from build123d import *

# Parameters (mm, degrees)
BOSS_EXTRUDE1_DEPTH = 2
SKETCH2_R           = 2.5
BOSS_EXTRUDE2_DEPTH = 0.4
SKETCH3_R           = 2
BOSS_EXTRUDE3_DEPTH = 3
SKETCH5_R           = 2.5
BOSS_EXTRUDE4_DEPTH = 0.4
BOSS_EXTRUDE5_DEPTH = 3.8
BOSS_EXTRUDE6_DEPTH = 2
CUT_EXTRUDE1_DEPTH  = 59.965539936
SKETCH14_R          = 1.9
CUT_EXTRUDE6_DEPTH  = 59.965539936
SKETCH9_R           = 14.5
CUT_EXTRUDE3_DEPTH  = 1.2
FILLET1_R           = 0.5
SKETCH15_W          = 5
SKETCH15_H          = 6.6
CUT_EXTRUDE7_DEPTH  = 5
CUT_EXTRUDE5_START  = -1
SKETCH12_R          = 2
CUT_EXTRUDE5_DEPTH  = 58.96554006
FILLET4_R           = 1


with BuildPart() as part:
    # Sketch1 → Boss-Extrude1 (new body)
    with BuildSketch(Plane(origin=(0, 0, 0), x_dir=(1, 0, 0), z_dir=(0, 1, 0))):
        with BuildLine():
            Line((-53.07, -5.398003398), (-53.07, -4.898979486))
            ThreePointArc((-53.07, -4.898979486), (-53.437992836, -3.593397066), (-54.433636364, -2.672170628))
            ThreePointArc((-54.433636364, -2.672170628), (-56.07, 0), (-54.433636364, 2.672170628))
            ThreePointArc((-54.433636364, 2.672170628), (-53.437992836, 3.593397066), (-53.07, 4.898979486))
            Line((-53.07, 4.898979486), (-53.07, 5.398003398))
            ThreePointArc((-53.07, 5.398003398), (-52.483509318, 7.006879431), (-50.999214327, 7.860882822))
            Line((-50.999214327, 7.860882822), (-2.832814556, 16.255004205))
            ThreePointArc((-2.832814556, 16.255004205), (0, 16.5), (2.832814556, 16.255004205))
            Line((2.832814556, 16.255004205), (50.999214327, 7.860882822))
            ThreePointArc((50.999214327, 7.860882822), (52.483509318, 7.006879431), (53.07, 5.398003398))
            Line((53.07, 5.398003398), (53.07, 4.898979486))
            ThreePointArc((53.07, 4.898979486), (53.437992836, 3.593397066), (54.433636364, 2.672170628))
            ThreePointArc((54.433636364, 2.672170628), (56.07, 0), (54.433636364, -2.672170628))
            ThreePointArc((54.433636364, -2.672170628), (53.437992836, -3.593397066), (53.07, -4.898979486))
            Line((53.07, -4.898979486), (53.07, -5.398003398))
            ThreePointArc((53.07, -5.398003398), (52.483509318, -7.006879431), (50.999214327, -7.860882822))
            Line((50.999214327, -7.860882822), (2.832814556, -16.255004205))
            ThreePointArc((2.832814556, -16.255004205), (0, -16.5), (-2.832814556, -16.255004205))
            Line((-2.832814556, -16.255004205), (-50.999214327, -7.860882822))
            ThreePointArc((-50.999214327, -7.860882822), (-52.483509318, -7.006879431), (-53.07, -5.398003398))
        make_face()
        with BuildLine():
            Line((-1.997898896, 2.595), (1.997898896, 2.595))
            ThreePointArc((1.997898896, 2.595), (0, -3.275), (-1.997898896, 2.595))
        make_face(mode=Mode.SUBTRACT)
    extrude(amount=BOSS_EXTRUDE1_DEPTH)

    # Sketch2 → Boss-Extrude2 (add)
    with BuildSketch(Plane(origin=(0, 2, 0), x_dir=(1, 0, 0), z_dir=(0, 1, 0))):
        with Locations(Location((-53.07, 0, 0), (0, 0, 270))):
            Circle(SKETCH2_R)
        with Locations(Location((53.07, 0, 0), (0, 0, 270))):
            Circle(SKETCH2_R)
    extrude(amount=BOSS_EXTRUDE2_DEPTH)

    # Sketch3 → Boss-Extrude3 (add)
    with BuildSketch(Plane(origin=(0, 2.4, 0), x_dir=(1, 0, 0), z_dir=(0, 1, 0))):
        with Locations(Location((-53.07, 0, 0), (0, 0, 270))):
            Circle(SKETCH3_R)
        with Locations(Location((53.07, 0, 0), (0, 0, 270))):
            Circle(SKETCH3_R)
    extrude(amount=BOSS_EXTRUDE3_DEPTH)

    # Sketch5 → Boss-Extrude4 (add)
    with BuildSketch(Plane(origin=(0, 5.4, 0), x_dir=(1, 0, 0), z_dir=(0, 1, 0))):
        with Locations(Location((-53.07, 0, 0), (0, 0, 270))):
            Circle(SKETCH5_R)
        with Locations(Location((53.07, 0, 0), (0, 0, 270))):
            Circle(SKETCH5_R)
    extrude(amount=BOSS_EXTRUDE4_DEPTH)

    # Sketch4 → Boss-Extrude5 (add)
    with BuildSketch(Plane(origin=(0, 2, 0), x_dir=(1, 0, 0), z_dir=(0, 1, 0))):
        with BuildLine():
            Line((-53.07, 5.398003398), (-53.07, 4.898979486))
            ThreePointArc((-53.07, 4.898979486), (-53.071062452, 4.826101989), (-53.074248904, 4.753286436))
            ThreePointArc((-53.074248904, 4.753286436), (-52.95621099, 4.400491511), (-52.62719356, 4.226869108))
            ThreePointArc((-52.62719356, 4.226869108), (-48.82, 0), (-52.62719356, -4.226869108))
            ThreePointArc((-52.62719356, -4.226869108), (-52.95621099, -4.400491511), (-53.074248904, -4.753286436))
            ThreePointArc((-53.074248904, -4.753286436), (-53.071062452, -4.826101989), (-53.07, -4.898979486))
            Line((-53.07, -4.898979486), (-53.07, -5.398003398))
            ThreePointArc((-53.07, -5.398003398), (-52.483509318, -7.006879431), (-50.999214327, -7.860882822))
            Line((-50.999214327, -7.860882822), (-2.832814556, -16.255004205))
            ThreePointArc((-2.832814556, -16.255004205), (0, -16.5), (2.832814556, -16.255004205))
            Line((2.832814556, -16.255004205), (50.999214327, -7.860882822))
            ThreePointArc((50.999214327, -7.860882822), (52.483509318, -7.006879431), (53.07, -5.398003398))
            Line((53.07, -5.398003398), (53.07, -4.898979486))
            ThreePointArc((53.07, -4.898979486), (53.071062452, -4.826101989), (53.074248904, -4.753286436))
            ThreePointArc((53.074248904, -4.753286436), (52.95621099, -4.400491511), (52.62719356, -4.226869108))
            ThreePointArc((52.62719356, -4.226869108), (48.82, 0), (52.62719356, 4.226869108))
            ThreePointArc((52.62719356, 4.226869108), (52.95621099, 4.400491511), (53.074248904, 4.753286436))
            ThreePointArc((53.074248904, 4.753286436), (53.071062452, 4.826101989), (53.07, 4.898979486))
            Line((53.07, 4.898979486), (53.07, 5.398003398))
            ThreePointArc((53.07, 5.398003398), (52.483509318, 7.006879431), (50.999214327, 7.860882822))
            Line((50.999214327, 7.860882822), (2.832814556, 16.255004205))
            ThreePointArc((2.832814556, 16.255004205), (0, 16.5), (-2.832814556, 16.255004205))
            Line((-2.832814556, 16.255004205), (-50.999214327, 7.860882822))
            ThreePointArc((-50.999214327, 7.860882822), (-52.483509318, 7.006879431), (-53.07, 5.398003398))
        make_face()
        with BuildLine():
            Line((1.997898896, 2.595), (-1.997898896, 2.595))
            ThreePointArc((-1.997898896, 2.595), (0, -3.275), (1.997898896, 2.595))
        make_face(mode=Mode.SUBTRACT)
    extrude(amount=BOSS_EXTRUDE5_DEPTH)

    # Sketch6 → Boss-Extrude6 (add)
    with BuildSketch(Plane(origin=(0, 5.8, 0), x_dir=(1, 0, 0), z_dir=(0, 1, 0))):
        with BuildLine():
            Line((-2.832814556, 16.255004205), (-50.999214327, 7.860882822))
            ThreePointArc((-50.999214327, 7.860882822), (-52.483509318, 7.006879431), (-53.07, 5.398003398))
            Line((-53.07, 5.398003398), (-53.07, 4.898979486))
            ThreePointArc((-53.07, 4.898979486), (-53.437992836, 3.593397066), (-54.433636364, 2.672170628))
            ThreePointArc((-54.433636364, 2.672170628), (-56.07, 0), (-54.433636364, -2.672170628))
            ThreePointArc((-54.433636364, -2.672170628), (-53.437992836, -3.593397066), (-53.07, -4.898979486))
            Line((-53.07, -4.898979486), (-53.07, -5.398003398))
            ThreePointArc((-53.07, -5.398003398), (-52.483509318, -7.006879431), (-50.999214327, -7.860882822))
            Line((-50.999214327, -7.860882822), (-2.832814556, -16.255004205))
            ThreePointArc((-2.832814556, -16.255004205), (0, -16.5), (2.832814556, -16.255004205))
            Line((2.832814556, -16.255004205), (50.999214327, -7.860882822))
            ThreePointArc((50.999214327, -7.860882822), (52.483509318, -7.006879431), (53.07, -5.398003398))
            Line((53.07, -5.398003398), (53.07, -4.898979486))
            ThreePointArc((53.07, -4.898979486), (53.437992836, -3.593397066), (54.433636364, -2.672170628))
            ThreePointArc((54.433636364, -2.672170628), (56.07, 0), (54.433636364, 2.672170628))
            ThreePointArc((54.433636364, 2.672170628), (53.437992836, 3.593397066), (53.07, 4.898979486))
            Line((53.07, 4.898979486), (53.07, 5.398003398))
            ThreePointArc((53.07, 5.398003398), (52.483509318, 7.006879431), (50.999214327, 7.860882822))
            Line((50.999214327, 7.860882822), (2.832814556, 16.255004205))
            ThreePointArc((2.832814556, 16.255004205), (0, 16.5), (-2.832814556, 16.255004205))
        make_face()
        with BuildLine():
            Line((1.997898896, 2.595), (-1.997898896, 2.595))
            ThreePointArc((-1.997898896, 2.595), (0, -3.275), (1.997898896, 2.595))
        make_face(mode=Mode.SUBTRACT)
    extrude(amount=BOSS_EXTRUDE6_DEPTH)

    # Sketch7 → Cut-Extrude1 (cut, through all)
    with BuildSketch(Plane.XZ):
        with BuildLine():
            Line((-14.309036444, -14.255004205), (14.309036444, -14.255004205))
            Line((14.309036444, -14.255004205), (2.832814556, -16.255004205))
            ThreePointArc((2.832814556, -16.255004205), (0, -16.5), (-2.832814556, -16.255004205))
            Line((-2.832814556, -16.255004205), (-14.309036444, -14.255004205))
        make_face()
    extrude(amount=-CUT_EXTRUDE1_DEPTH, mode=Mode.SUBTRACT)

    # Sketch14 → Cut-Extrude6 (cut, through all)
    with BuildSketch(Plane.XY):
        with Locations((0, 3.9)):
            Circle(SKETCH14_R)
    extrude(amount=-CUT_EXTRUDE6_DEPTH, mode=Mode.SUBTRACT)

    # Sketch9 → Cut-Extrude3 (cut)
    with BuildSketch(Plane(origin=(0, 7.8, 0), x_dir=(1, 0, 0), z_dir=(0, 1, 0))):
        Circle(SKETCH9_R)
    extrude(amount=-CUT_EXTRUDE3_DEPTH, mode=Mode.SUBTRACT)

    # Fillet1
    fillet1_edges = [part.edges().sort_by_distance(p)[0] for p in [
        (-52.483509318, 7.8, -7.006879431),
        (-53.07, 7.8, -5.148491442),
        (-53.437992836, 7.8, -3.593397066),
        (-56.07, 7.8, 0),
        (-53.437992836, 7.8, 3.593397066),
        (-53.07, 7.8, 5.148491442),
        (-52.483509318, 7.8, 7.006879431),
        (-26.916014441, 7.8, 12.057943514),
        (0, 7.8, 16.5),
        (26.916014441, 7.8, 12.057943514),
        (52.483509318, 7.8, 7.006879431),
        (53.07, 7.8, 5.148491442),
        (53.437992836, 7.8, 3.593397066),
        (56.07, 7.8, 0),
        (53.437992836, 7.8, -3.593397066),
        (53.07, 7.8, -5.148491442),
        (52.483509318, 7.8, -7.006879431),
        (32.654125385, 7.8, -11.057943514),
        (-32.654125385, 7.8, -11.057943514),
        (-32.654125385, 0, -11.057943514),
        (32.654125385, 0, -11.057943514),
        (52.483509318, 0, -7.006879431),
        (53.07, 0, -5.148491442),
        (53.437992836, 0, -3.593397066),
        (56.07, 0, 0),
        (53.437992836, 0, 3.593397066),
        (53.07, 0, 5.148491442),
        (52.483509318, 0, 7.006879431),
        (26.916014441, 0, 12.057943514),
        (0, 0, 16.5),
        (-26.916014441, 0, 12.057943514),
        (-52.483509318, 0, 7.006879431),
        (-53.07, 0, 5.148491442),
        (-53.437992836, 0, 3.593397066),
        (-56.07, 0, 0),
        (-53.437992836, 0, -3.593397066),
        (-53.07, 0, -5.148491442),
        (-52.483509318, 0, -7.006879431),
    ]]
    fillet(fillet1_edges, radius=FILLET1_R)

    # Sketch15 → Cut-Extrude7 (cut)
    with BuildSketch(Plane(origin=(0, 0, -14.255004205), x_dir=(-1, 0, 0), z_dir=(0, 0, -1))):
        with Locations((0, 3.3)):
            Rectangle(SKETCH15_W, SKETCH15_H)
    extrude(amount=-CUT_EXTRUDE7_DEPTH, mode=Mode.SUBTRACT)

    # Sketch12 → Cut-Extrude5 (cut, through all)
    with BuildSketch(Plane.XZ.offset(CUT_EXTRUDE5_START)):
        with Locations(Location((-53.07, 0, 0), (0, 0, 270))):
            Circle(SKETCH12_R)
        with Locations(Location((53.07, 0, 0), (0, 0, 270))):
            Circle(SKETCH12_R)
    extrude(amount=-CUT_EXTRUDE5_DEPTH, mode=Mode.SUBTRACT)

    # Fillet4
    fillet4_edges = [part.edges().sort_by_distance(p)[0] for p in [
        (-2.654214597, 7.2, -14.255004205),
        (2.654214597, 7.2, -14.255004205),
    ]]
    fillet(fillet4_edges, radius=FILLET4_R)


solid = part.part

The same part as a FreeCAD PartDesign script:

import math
import FreeCAD as App
import Part
import Sketcher
Q = App.Units.Quantity


def edges_at(feature, points):
    """Names of the edges that pass closest to the given points."""
    edges = feature.Shape.Edges
    near = lambda p: min(range(len(edges)), key=lambda i: edges[i].distToShape(Part.Vertex(*p))[0])
    return sorted({f"Edge{near(p) + 1}" for p in points})


def add_polygon(sketch, points):
    """Adds a closed chain of lines whose ends are joined by coincident constraints."""
    first, n = sketch.GeometryCount, len(points)
    for a, b in zip(points, points[1:] + points[:1]):
        sketch.addGeometry(Part.LineSegment(App.Vector(*a, 0), App.Vector(*b, 0)), False)
    for i in range(n):
        sketch.addConstraint(Sketcher.Constraint("Coincident", first + i, 2, first + (i + 1) % n, 1))

doc = App.newDocument("Part")
body = doc.addObject("PartDesign::Body", "Body")

sketch1 = doc.addObject("Sketcher::SketchObject", "Sketch")
body.addObject(sketch1)
sketch1.AttachmentSupport = (doc.XZ_Plane, [""])
sketch1.MapMode = "FlatFace"
sketch1.addGeometry(Part.LineSegment(App.Vector(-53.07, 4.9, 0), App.Vector(-53.07, 5.4, 0)), False)
sketch1.addGeometry(Part.ArcOfCircle(Part.Circle(App.Vector(-50.57, 5.4, 0), App.Vector(0, 0, 1), 2.5), math.radians(100), math.radians(180)), False)
sketch1.addGeometry(Part.LineSegment(App.Vector(-51, 7.86, 0), App.Vector(-2.83, 16.26, 0)), False)
sketch1.addGeometry(Part.ArcOfCircle(Part.Circle(App.Vector(0, 0, 0), App.Vector(0, 0, 1), 16.5), math.radians(80.11), math.radians(99.89)), False)
sketch1.addGeometry(Part.LineSegment(App.Vector(2.83, 16.26, 0), App.Vector(51, 7.86, 0)), False)
sketch1.addGeometry(Part.ArcOfCircle(Part.Circle(App.Vector(50.57, 5.4, 0), App.Vector(0, 0, 1), 2.5), math.radians(0), math.radians(80)), False)
sketch1.addGeometry(Part.LineSegment(App.Vector(53.07, 5.4, 0), App.Vector(53.07, 4.9, 0)), False)
sketch1.addGeometry(Part.ArcOfCircle(Part.Circle(App.Vector(55.57, 4.9, 0), App.Vector(0, 0, 1), 2.5), math.radians(180), math.radians(243)), False)
sketch1.addGeometry(Part.ArcOfCircle(Part.Circle(App.Vector(53.07, 0, 0), App.Vector(0, 0, 1), 3), math.radians(-63), math.radians(63)), False)
sketch1.addGeometry(Part.ArcOfCircle(Part.Circle(App.Vector(55.57, -4.9, 0), App.Vector(0, 0, 1), 2.5), math.radians(117), math.radians(180)), False)
sketch1.addGeometry(Part.LineSegment(App.Vector(53.07, -4.9, 0), App.Vector(53.07, -5.4, 0)), False)
sketch1.addGeometry(Part.ArcOfCircle(Part.Circle(App.Vector(50.57, -5.4, 0), App.Vector(0, 0, 1), 2.5), math.radians(-80), math.radians(0)), False)
sketch1.addGeometry(Part.LineSegment(App.Vector(51, -7.86, 0), App.Vector(2.83, -16.26, 0)), False)
sketch1.addGeometry(Part.ArcOfCircle(Part.Circle(App.Vector(0, 0, 0), App.Vector(0, 0, 1), 16.5), math.radians(-99.89), math.radians(-80.11)), False)
sketch1.addGeometry(Part.LineSegment(App.Vector(-2.83, -16.26, 0), App.Vector(-51, -7.86, 0)), False)
sketch1.addGeometry(Part.ArcOfCircle(Part.Circle(App.Vector(-50.57, -5.4, 0), App.Vector(0, 0, 1), 2.5), math.radians(180), math.radians(260)), False)
sketch1.addGeometry(Part.LineSegment(App.Vector(-53.07, -5.4, 0), App.Vector(-53.07, -4.9, 0)), False)
sketch1.addGeometry(Part.ArcOfCircle(Part.Circle(App.Vector(-55.57, -4.9, 0), App.Vector(0, 0, 1), 2.5), math.radians(0), math.radians(63)), False)
sketch1.addGeometry(Part.ArcOfCircle(Part.Circle(App.Vector(-53.07, 0, 0), App.Vector(0, 0, 1), 3), math.radians(117), math.radians(243)), False)
sketch1.addGeometry(Part.ArcOfCircle(Part.Circle(App.Vector(-55.57, 4.9, 0), App.Vector(0, 0, 1), 2.5), math.radians(-63), math.radians(0)), False)
sketch1.addGeometry(Part.LineSegment(App.Vector(-2, -2.6, 0), App.Vector(2, -2.6, 0)), False)
sketch1.addGeometry(Part.ArcOfCircle(Part.Circle(App.Vector(0, 0, 0), App.Vector(0, 0, 1), 3.27), math.radians(-52), math.radians(232)), False)
sketch1.addConstraint(Sketcher.Constraint("Tangent", 0, 2, 1, 2))
sketch1.addConstraint(Sketcher.Constraint("Tangent", 1, 1, 2, 1))
sketch1.addConstraint(Sketcher.Constraint("Tangent", 2, 2, 3, 2))
sketch1.addConstraint(Sketcher.Constraint("Tangent", 3, 1, 4, 1))
sketch1.addConstraint(Sketcher.Constraint("Tangent", 4, 2, 5, 2))
sketch1.addConstraint(Sketcher.Constraint("Tangent", 5, 1, 6, 1))
sketch1.addConstraint(Sketcher.Constraint("Tangent", 6, 2, 7, 1))
sketch1.addConstraint(Sketcher.Constraint("Tangent", 7, 2, 8, 2))
sketch1.addConstraint(Sketcher.Constraint("Tangent", 8, 1, 9, 1))
sketch1.addConstraint(Sketcher.Constraint("Tangent", 9, 2, 10, 1))
sketch1.addConstraint(Sketcher.Constraint("Tangent", 10, 2, 11, 2))
sketch1.addConstraint(Sketcher.Constraint("Tangent", 11, 1, 12, 1))
sketch1.addConstraint(Sketcher.Constraint("Tangent", 12, 2, 13, 2))
sketch1.addConstraint(Sketcher.Constraint("Tangent", 13, 1, 14, 1))
sketch1.addConstraint(Sketcher.Constraint("Tangent", 14, 2, 15, 2))
sketch1.addConstraint(Sketcher.Constraint("Tangent", 15, 1, 16, 1))
sketch1.addConstraint(Sketcher.Constraint("Tangent", 16, 2, 17, 1))
sketch1.addConstraint(Sketcher.Constraint("Tangent", 17, 2, 18, 2))
sketch1.addConstraint(Sketcher.Constraint("Tangent", 18, 1, 19, 1))
sketch1.addConstraint(Sketcher.Constraint("Tangent", 19, 2, 0, 1))
sketch1.addConstraint(Sketcher.Constraint("Coincident", 20, 1, 21, 2))
sketch1.addConstraint(Sketcher.Constraint("Coincident", 21, 1, 20, 2))
sketch1.addConstraint(Sketcher.Constraint("Vertical", 0))
sketch1.addConstraint(Sketcher.Constraint("Vertical", 6))
sketch1.addConstraint(Sketcher.Constraint("Vertical", 10))
sketch1.addConstraint(Sketcher.Constraint("Vertical", 16))
sketch1.addConstraint(Sketcher.Constraint("Horizontal", 20))
sketch1.addConstraint(Sketcher.Constraint("Coincident", 3, 3, -1, 1))
sketch1.addConstraint(Sketcher.Constraint("Coincident", 13, 3, -1, 1))
sketch1.addConstraint(Sketcher.Constraint("Coincident", 21, 3, -1, 1))
sketch1.addConstraint(Sketcher.Constraint("Equal", 1, 5))
sketch1.addConstraint(Sketcher.Constraint("Equal", 5, 7))
sketch1.addConstraint(Sketcher.Constraint("Equal", 7, 9))
sketch1.addConstraint(Sketcher.Constraint("Equal", 9, 11))
sketch1.addConstraint(Sketcher.Constraint("Equal", 3, 13))
sketch1.addConstraint(Sketcher.Constraint("Equal", 11, 15))
sketch1.addConstraint(Sketcher.Constraint("Equal", 15, 17))
sketch1.addConstraint(Sketcher.Constraint("Equal", 8, 18))
sketch1.addConstraint(Sketcher.Constraint("Equal", 17, 19))
sketch1.addConstraint(Sketcher.Constraint("Symmetric", 1, 3, 11, 3, -1, 1))
sketch1.addConstraint(Sketcher.Constraint("Symmetric", 5, 3, 15, 3, -1, 1))
sketch1.addConstraint(Sketcher.Constraint("Symmetric", 8, 3, 18, 3, -1, 1))
sketch1.addConstraint(Sketcher.Constraint("Symmetric", 1, 3, 5, 3, -2))
sketch1.addConstraint(Sketcher.Constraint("PointOnObject", 8, 3, -1))
sketch1.addConstraint(Sketcher.Constraint("Vertical", 18, 3, 0, 2))
sketch1.addConstraint(Sketcher.Constraint("Radius", 8, Q("3 mm")))
sketch1.addConstraint(Sketcher.Constraint("Radius", 1, Q("2.5 mm")))
sketch1.addConstraint(Sketcher.Constraint("Radius", 3, Q("16.5 mm")))
sketch1.addConstraint(Sketcher.Constraint("Radius", 21, Q("3.275 mm")))
sketch1.addConstraint(Sketcher.Constraint("DistanceX", 1, 3, -1, 1, Q("50.57 mm")))
sketch1.addConstraint(Sketcher.Constraint("DistanceY", 20, 1, -1, 1, Q("2.595 mm")))
sketch1.addConstraint(Sketcher.Constraint("DistanceY", 1, 3, 2, 2, Q("10.857001 mm")))
pad1 = doc.addObject("PartDesign::Pad", "Pad")
body.addObject(pad1)
pad1.Profile = sketch1
pad1.Length = 2
pad1.Reversed = True

sketch2 = doc.addObject("Sketcher::SketchObject", "Sketch001")
body.addObject(sketch2)
sketch2.AttachmentSupport = (doc.XZ_Plane, [""])
sketch2.MapMode = "FlatFace"
sketch2.AttachmentOffset = App.Placement(App.Vector(0, 0, -2), App.Rotation())
sketch2.addGeometry(Part.Circle(App.Vector(-53.1, 0, 0), App.Vector(0, 0, 1), 2.5), False)
sketch2.addGeometry(Part.Circle(App.Vector(53.1, 0, 0), App.Vector(0, 0, 1), 2.5), False)
sketch2.addConstraint(Sketcher.Constraint("Equal", 0, 1))
sketch2.addConstraint(Sketcher.Constraint("Symmetric", 0, 3, 1, 3, -1, 1))
sketch2.addConstraint(Sketcher.Constraint("PointOnObject", 0, 3, -1))
sketch2.addConstraint(Sketcher.Constraint("Diameter", 0, Q("5 mm")))
sketch2.addConstraint(Sketcher.Constraint("DistanceX", 0, 3, -1, 1, Q("53.07 mm")))
pad2 = doc.addObject("PartDesign::Pad", "Pad001")
body.addObject(pad2)
pad2.Profile = sketch2
pad2.Length = 0.4
pad2.Reversed = True

sketch3 = doc.addObject("Sketcher::SketchObject", "Sketch002")
body.addObject(sketch3)
sketch3.AttachmentSupport = (doc.XZ_Plane, [""])
sketch3.MapMode = "FlatFace"
sketch3.AttachmentOffset = App.Placement(App.Vector(0, 0, -2.4), App.Rotation())
sketch3.addGeometry(Part.Circle(App.Vector(-53.1, 0, 0), App.Vector(0, 0, 1), 2), False)
sketch3.addGeometry(Part.Circle(App.Vector(53.1, 0, 0), App.Vector(0, 0, 1), 2), False)
sketch3.addConstraint(Sketcher.Constraint("Equal", 0, 1))
sketch3.addConstraint(Sketcher.Constraint("Symmetric", 0, 3, 1, 3, -1, 1))
sketch3.addConstraint(Sketcher.Constraint("PointOnObject", 0, 3, -1))
sketch3.addConstraint(Sketcher.Constraint("Diameter", 0, Q("4 mm")))
sketch3.addConstraint(Sketcher.Constraint("DistanceX", 0, 3, -1, 1, Q("53.07 mm")))
pad3 = doc.addObject("PartDesign::Pad", "Pad002")
body.addObject(pad3)
pad3.Profile = sketch3
pad3.Length = 3
pad3.Reversed = True

sketch4 = doc.addObject("Sketcher::SketchObject", "Sketch003")
body.addObject(sketch4)
sketch4.AttachmentSupport = (doc.XZ_Plane, [""])
sketch4.MapMode = "FlatFace"
sketch4.AttachmentOffset = App.Placement(App.Vector(0, 0, -5.4), App.Rotation())
sketch4.addGeometry(Part.Circle(App.Vector(-53.1, 0, 0), App.Vector(0, 0, 1), 2.5), False)
sketch4.addGeometry(Part.Circle(App.Vector(53.1, 0, 0), App.Vector(0, 0, 1), 2.5), False)
sketch4.addConstraint(Sketcher.Constraint("Equal", 0, 1))
sketch4.addConstraint(Sketcher.Constraint("Symmetric", 0, 3, 1, 3, -1, 1))
sketch4.addConstraint(Sketcher.Constraint("PointOnObject", 0, 3, -1))
sketch4.addConstraint(Sketcher.Constraint("Diameter", 0, Q("5 mm")))
sketch4.addConstraint(Sketcher.Constraint("DistanceX", 0, 3, -1, 1, Q("53.07 mm")))
pad4 = doc.addObject("PartDesign::Pad", "Pad003")
body.addObject(pad4)
pad4.Profile = sketch4
pad4.Length = 0.4
pad4.Reversed = True

sketch5 = doc.addObject("Sketcher::SketchObject", "Sketch004")
body.addObject(sketch5)
sketch5.AttachmentSupport = (doc.XZ_Plane, [""])
sketch5.MapMode = "FlatFace"
sketch5.AttachmentOffset = App.Placement(App.Vector(0, 0, -2), App.Rotation())
sketch5.addGeometry(Part.LineSegment(App.Vector(-53.07, -5.4, 0), App.Vector(-53.07, -4.9, 0)), False)
sketch5.addGeometry(Part.ArcOfCircle(Part.Circle(App.Vector(-55.57, -4.9, 0), App.Vector(0, 0, 1), 2.5), math.radians(0), math.radians(3.34)), False)
sketch5.addGeometry(Part.ArcOfCircle(Part.Circle(App.Vector(-52.58, -4.72, 0), App.Vector(0, 0, 1), 0.5), math.radians(96), math.radians(183)), False)
sketch5.addGeometry(Part.ArcOfCircle(Part.Circle(App.Vector(-53.07, 0, 0), App.Vector(0, 0, 1), 4.25), math.radians(-84), math.radians(84)), False)
sketch5.addGeometry(Part.ArcOfCircle(Part.Circle(App.Vector(-52.58, 4.72, 0), App.Vector(0, 0, 1), 0.5), math.radians(177), math.radians(264)), False)
sketch5.addGeometry(Part.ArcOfCircle(Part.Circle(App.Vector(-55.57, 4.9, 0), App.Vector(0, 0, 1), 2.5), math.radians(-3.34), math.radians(0)), False)
sketch5.addGeometry(Part.LineSegment(App.Vector(-53.07, 4.9, 0), App.Vector(-53.07, 5.4, 0)), False)
sketch5.addGeometry(Part.ArcOfCircle(Part.Circle(App.Vector(-50.57, 5.4, 0), App.Vector(0, 0, 1), 2.5), math.radians(100), math.radians(180)), False)
sketch5.addGeometry(Part.LineSegment(App.Vector(-51, 7.86, 0), App.Vector(-2.83, 16.26, 0)), False)
sketch5.addGeometry(Part.ArcOfCircle(Part.Circle(App.Vector(0, 0, 0), App.Vector(0, 0, 1), 16.5), math.radians(80.11), math.radians(99.89)), False)
sketch5.addGeometry(Part.LineSegment(App.Vector(2.83, 16.26, 0), App.Vector(51, 7.86, 0)), False)
sketch5.addGeometry(Part.ArcOfCircle(Part.Circle(App.Vector(50.57, 5.4, 0), App.Vector(0, 0, 1), 2.5), math.radians(0), math.radians(80)), False)
sketch5.addGeometry(Part.LineSegment(App.Vector(53.07, 5.4, 0), App.Vector(53.07, 4.9, 0)), False)
sketch5.addGeometry(Part.ArcOfCircle(Part.Circle(App.Vector(55.57, 4.9, 0), App.Vector(0, 0, 1), 2.5), math.radians(-180), math.radians(-176.66)), False)
sketch5.addGeometry(Part.ArcOfCircle(Part.Circle(App.Vector(52.58, 4.72, 0), App.Vector(0, 0, 1), 0.5), math.radians(-84), math.radians(3)), False)
sketch5.addGeometry(Part.ArcOfCircle(Part.Circle(App.Vector(53.07, 0, 0), App.Vector(0, 0, 1), 4.25), math.radians(96), math.radians(264)), False)
sketch5.addGeometry(Part.ArcOfCircle(Part.Circle(App.Vector(52.58, -4.72, 0), App.Vector(0, 0, 1), 0.5), math.radians(-3), math.radians(84)), False)
sketch5.addGeometry(Part.ArcOfCircle(Part.Circle(App.Vector(55.57, -4.9, 0), App.Vector(0, 0, 1), 2.5), math.radians(176.66), math.radians(180)), False)
sketch5.addGeometry(Part.LineSegment(App.Vector(53.07, -4.9, 0), App.Vector(53.07, -5.4, 0)), False)
sketch5.addGeometry(Part.ArcOfCircle(Part.Circle(App.Vector(50.57, -5.4, 0), App.Vector(0, 0, 1), 2.5), math.radians(-80), math.radians(0)), False)
sketch5.addGeometry(Part.LineSegment(App.Vector(51, -7.86, 0), App.Vector(2.83, -16.26, 0)), False)
sketch5.addGeometry(Part.ArcOfCircle(Part.Circle(App.Vector(0, 0, 0), App.Vector(0, 0, 1), 16.5), math.radians(-99.89), math.radians(-80.11)), False)
sketch5.addGeometry(Part.LineSegment(App.Vector(-2.83, -16.26, 0), App.Vector(-51, -7.86, 0)), False)
sketch5.addGeometry(Part.ArcOfCircle(Part.Circle(App.Vector(-50.57, -5.4, 0), App.Vector(0, 0, 1), 2.5), math.radians(180), math.radians(260)), False)
sketch5.addGeometry(Part.LineSegment(App.Vector(-2, -2.6, 0), App.Vector(2, -2.6, 0)), False)
sketch5.addGeometry(Part.ArcOfCircle(Part.Circle(App.Vector(0, 0, 0), App.Vector(0, 0, 1), 3.27), math.radians(-52), math.radians(232)), False)
sketch5.addConstraint(Sketcher.Constraint("Tangent", 0, 2, 1, 1))
sketch5.addConstraint(Sketcher.Constraint("Tangent", 1, 2, 2, 2))
sketch5.addConstraint(Sketcher.Constraint("Tangent", 2, 1, 3, 1))
sketch5.addConstraint(Sketcher.Constraint("Tangent", 3, 2, 4, 2))
sketch5.addConstraint(Sketcher.Constraint("Tangent", 4, 1, 5, 1))
sketch5.addConstraint(Sketcher.Constraint("Tangent", 5, 2, 6, 1))
sketch5.addConstraint(Sketcher.Constraint("Tangent", 6, 2, 7, 2))
sketch5.addConstraint(Sketcher.Constraint("Tangent", 7, 1, 8, 1))
sketch5.addConstraint(Sketcher.Constraint("Tangent", 8, 2, 9, 2))
sketch5.addConstraint(Sketcher.Constraint("Tangent", 9, 1, 10, 1))
sketch5.addConstraint(Sketcher.Constraint("Tangent", 10, 2, 11, 2))
sketch5.addConstraint(Sketcher.Constraint("Tangent", 11, 1, 12, 1))
sketch5.addConstraint(Sketcher.Constraint("Tangent", 12, 2, 13, 1))
sketch5.addConstraint(Sketcher.Constraint("Tangent", 13, 2, 14, 2))
sketch5.addConstraint(Sketcher.Constraint("Tangent", 14, 1, 15, 1))
sketch5.addConstraint(Sketcher.Constraint("Tangent", 15, 2, 16, 2))
sketch5.addConstraint(Sketcher.Constraint("Tangent", 16, 1, 17, 1))
sketch5.addConstraint(Sketcher.Constraint("Tangent", 17, 2, 18, 1))
sketch5.addConstraint(Sketcher.Constraint("Tangent", 18, 2, 19, 2))
sketch5.addConstraint(Sketcher.Constraint("Tangent", 19, 1, 20, 1))
sketch5.addConstraint(Sketcher.Constraint("Tangent", 20, 2, 21, 2))
sketch5.addConstraint(Sketcher.Constraint("Tangent", 21, 1, 22, 1))
sketch5.addConstraint(Sketcher.Constraint("Tangent", 22, 2, 23, 2))
sketch5.addConstraint(Sketcher.Constraint("Tangent", 23, 1, 0, 1))
sketch5.addConstraint(Sketcher.Constraint("Coincident", 24, 1, 25, 2))
sketch5.addConstraint(Sketcher.Constraint("Coincident", 25, 1, 24, 2))
sketch5.addConstraint(Sketcher.Constraint("Vertical", 0))
sketch5.addConstraint(Sketcher.Constraint("Vertical", 6))
sketch5.addConstraint(Sketcher.Constraint("Vertical", 12))
sketch5.addConstraint(Sketcher.Constraint("Vertical", 18))
sketch5.addConstraint(Sketcher.Constraint("Horizontal", 24))
sketch5.addConstraint(Sketcher.Constraint("Coincident", 9, 3, -1, 1))
sketch5.addConstraint(Sketcher.Constraint("Coincident", 21, 3, -1, 1))
sketch5.addConstraint(Sketcher.Constraint("Coincident", 25, 3, -1, 1))
sketch5.addConstraint(Sketcher.Constraint("Equal", 2, 4))
sketch5.addConstraint(Sketcher.Constraint("Equal", 1, 5))
sketch5.addConstraint(Sketcher.Constraint("Equal", 5, 7))
sketch5.addConstraint(Sketcher.Constraint("Equal", 7, 11))
sketch5.addConstraint(Sketcher.Constraint("Equal", 11, 13))
sketch5.addConstraint(Sketcher.Constraint("Equal", 4, 14))
sketch5.addConstraint(Sketcher.Constraint("Equal", 3, 15))
sketch5.addConstraint(Sketcher.Constraint("Equal", 14, 16))
sketch5.addConstraint(Sketcher.Constraint("Equal", 13, 17))
sketch5.addConstraint(Sketcher.Constraint("Equal", 17, 19))
sketch5.addConstraint(Sketcher.Constraint("Equal", 9, 21))
sketch5.addConstraint(Sketcher.Constraint("Equal", 19, 23))
sketch5.addConstraint(Sketcher.Constraint("Symmetric", 1, 3, 13, 3, -1, 1))
sketch5.addConstraint(Sketcher.Constraint("Symmetric", 3, 3, 15, 3, -1, 1))
sketch5.addConstraint(Sketcher.Constraint("Symmetric", 5, 3, 17, 3, -1, 1))
sketch5.addConstraint(Sketcher.Constraint("Symmetric", 7, 3, 11, 3, -2))
sketch5.addConstraint(Sketcher.Constraint("Symmetric", 4, 3, 14, 3, -2))
sketch5.addConstraint(Sketcher.Constraint("Parallel", 8, 20))
sketch5.addConstraint(Sketcher.Constraint("Parallel", 10, 22))
sketch5.addConstraint(Sketcher.Constraint("Vertical", 3, 3, 0, 2))
sketch5.addConstraint(Sketcher.Constraint("Radius", 1, Q("2.5 mm")))
sketch5.addConstraint(Sketcher.Constraint("Radius", 2, Q("0.5 mm")))
sketch5.addConstraint(Sketcher.Constraint("Radius", 9, Q("16.5 mm")))
sketch5.addConstraint(Sketcher.Constraint("Radius", 3, Q("4.25 mm")))
sketch5.addConstraint(Sketcher.Constraint("Radius", 25, Q("3.275 mm")))
sketch5.addConstraint(Sketcher.Constraint("DistanceX", 1, 3, -1, 1, Q("55.57 mm")))
sketch5.addConstraint(Sketcher.Constraint("DistanceY", 24, 1, -1, 1, Q("2.595 mm")))
sketch5.addConstraint(Sketcher.Constraint("DistanceY", 7, 3, 8, 2, Q("10.857001 mm")))
sketch5.addConstraint(Sketcher.Constraint("DistanceX", 2, 3, -1, 1, Q("52.575099 mm")))
pad5 = doc.addObject("PartDesign::Pad", "Pad004")
body.addObject(pad5)
pad5.Profile = sketch5
pad5.Length = 3.8
pad5.Reversed = True

sketch6 = doc.addObject("Sketcher::SketchObject", "Sketch005")
body.addObject(sketch6)
sketch6.AttachmentSupport = (doc.XZ_Plane, [""])
sketch6.MapMode = "FlatFace"
sketch6.AttachmentOffset = App.Placement(App.Vector(0, 0, -5.8), App.Rotation())
sketch6.addGeometry(Part.LineSegment(App.Vector(-2.83, -16.26, 0), App.Vector(-51, -7.86, 0)), False)
sketch6.addGeometry(Part.ArcOfCircle(Part.Circle(App.Vector(-50.57, -5.4, 0), App.Vector(0, 0, 1), 2.5), math.radians(180), math.radians(260)), False)
sketch6.addGeometry(Part.LineSegment(App.Vector(-53.07, -5.4, 0), App.Vector(-53.07, -4.9, 0)), False)
sketch6.addGeometry(Part.ArcOfCircle(Part.Circle(App.Vector(-55.57, -4.9, 0), App.Vector(0, 0, 1), 2.5), math.radians(0), math.radians(63)), False)
sketch6.addGeometry(Part.ArcOfCircle(Part.Circle(App.Vector(-53.07, 0, 0), App.Vector(0, 0, 1), 3), math.radians(117), math.radians(243)), False)
sketch6.addGeometry(Part.ArcOfCircle(Part.Circle(App.Vector(-55.57, 4.9, 0), App.Vector(0, 0, 1), 2.5), math.radians(-63), math.radians(0)), False)
sketch6.addGeometry(Part.LineSegment(App.Vector(-53.07, 4.9, 0), App.Vector(-53.07, 5.4, 0)), False)
sketch6.addGeometry(Part.ArcOfCircle(Part.Circle(App.Vector(-50.57, 5.4, 0), App.Vector(0, 0, 1), 2.5), math.radians(100), math.radians(180)), False)
sketch6.addGeometry(Part.LineSegment(App.Vector(-51, 7.86, 0), App.Vector(-2.83, 16.26, 0)), False)
sketch6.addGeometry(Part.ArcOfCircle(Part.Circle(App.Vector(0, 0, 0), App.Vector(0, 0, 1), 16.5), math.radians(80.11), math.radians(99.89)), False)
sketch6.addGeometry(Part.LineSegment(App.Vector(2.83, 16.26, 0), App.Vector(51, 7.86, 0)), False)
sketch6.addGeometry(Part.ArcOfCircle(Part.Circle(App.Vector(50.57, 5.4, 0), App.Vector(0, 0, 1), 2.5), math.radians(0), math.radians(80)), False)
sketch6.addGeometry(Part.LineSegment(App.Vector(53.07, 5.4, 0), App.Vector(53.07, 4.9, 0)), False)
sketch6.addGeometry(Part.ArcOfCircle(Part.Circle(App.Vector(55.57, 4.9, 0), App.Vector(0, 0, 1), 2.5), math.radians(180), math.radians(243)), False)
sketch6.addGeometry(Part.ArcOfCircle(Part.Circle(App.Vector(53.07, 0, 0), App.Vector(0, 0, 1), 3), math.radians(-63), math.radians(63)), False)
sketch6.addGeometry(Part.ArcOfCircle(Part.Circle(App.Vector(55.57, -4.9, 0), App.Vector(0, 0, 1), 2.5), math.radians(117), math.radians(180)), False)
sketch6.addGeometry(Part.LineSegment(App.Vector(53.07, -4.9, 0), App.Vector(53.07, -5.4, 0)), False)
sketch6.addGeometry(Part.ArcOfCircle(Part.Circle(App.Vector(50.57, -5.4, 0), App.Vector(0, 0, 1), 2.5), math.radians(-80), math.radians(0)), False)
sketch6.addGeometry(Part.LineSegment(App.Vector(51, -7.86, 0), App.Vector(2.83, -16.26, 0)), False)
sketch6.addGeometry(Part.ArcOfCircle(Part.Circle(App.Vector(0, 0, 0), App.Vector(0, 0, 1), 16.5), math.radians(-99.89), math.radians(-80.11)), False)
sketch6.addGeometry(Part.LineSegment(App.Vector(-2, -2.6, 0), App.Vector(2, -2.6, 0)), False)
sketch6.addGeometry(Part.ArcOfCircle(Part.Circle(App.Vector(0, 0, 0), App.Vector(0, 0, 1), 3.27), math.radians(-52), math.radians(232)), False)
sketch6.addConstraint(Sketcher.Constraint("Tangent", 0, 2, 1, 2))
sketch6.addConstraint(Sketcher.Constraint("Tangent", 1, 1, 2, 1))
sketch6.addConstraint(Sketcher.Constraint("Tangent", 2, 2, 3, 1))
sketch6.addConstraint(Sketcher.Constraint("Tangent", 3, 2, 4, 2))
sketch6.addConstraint(Sketcher.Constraint("Tangent", 4, 1, 5, 1))
sketch6.addConstraint(Sketcher.Constraint("Tangent", 5, 2, 6, 1))
sketch6.addConstraint(Sketcher.Constraint("Tangent", 6, 2, 7, 2))
sketch6.addConstraint(Sketcher.Constraint("Tangent", 7, 1, 8, 1))
sketch6.addConstraint(Sketcher.Constraint("Tangent", 8, 2, 9, 2))
sketch6.addConstraint(Sketcher.Constraint("Tangent", 9, 1, 10, 1))
sketch6.addConstraint(Sketcher.Constraint("Tangent", 10, 2, 11, 2))
sketch6.addConstraint(Sketcher.Constraint("Tangent", 11, 1, 12, 1))
sketch6.addConstraint(Sketcher.Constraint("Tangent", 12, 2, 13, 1))
sketch6.addConstraint(Sketcher.Constraint("Tangent", 13, 2, 14, 2))
sketch6.addConstraint(Sketcher.Constraint("Tangent", 14, 1, 15, 1))
sketch6.addConstraint(Sketcher.Constraint("Tangent", 15, 2, 16, 1))
sketch6.addConstraint(Sketcher.Constraint("Tangent", 16, 2, 17, 2))
sketch6.addConstraint(Sketcher.Constraint("Tangent", 17, 1, 18, 1))
sketch6.addConstraint(Sketcher.Constraint("Tangent", 18, 2, 19, 2))
sketch6.addConstraint(Sketcher.Constraint("Tangent", 19, 1, 0, 1))
sketch6.addConstraint(Sketcher.Constraint("Coincident", 20, 1, 21, 2))
sketch6.addConstraint(Sketcher.Constraint("Coincident", 21, 1, 20, 2))
sketch6.addConstraint(Sketcher.Constraint("Vertical", 2))
sketch6.addConstraint(Sketcher.Constraint("Vertical", 6))
sketch6.addConstraint(Sketcher.Constraint("Vertical", 12))
sketch6.addConstraint(Sketcher.Constraint("Vertical", 16))
sketch6.addConstraint(Sketcher.Constraint("Horizontal", 20))
sketch6.addConstraint(Sketcher.Constraint("Coincident", 9, 3, -1, 1))
sketch6.addConstraint(Sketcher.Constraint("Coincident", 19, 3, -1, 1))
sketch6.addConstraint(Sketcher.Constraint("Coincident", 21, 3, -1, 1))
sketch6.addConstraint(Sketcher.Constraint("Equal", 1, 3))
sketch6.addConstraint(Sketcher.Constraint("Equal", 3, 5))
sketch6.addConstraint(Sketcher.Constraint("Equal", 5, 7))
sketch6.addConstraint(Sketcher.Constraint("Equal", 7, 11))
sketch6.addConstraint(Sketcher.Constraint("Equal", 11, 13))
sketch6.addConstraint(Sketcher.Constraint("Equal", 4, 14))
sketch6.addConstraint(Sketcher.Constraint("Equal", 13, 15))
sketch6.addConstraint(Sketcher.Constraint("Equal", 15, 17))
sketch6.addConstraint(Sketcher.Constraint("Equal", 9, 19))
sketch6.addConstraint(Sketcher.Constraint("Symmetric", 1, 3, 11, 3, -1, 1))
sketch6.addConstraint(Sketcher.Constraint("Symmetric", 4, 3, 14, 3, -1, 1))
sketch6.addConstraint(Sketcher.Constraint("Symmetric", 7, 3, 17, 3, -1, 1))
sketch6.addConstraint(Sketcher.Constraint("Symmetric", 7, 3, 11, 3, -2))
sketch6.addConstraint(Sketcher.Constraint("PointOnObject", 4, 3, -1))
sketch6.addConstraint(Sketcher.Constraint("Vertical", 4, 3, 1, 1))
sketch6.addConstraint(Sketcher.Constraint("Radius", 4, Q("3 mm")))
sketch6.addConstraint(Sketcher.Constraint("Radius", 1, Q("2.5 mm")))
sketch6.addConstraint(Sketcher.Constraint("Radius", 9, Q("16.5 mm")))
sketch6.addConstraint(Sketcher.Constraint("Radius", 21, Q("3.275 mm")))
sketch6.addConstraint(Sketcher.Constraint("DistanceX", 1, 3, -1, 1, Q("50.57 mm")))
sketch6.addConstraint(Sketcher.Constraint("DistanceY", 20, 1, -1, 1, Q("2.595 mm")))
sketch6.addConstraint(Sketcher.Constraint("DistanceY", 7, 3, 8, 2, Q("10.857001 mm")))
pad6 = doc.addObject("PartDesign::Pad", "Pad005")
body.addObject(pad6)
pad6.Profile = sketch6
pad6.Length = 2
pad6.Reversed = True

sketch7 = doc.addObject("Sketcher::SketchObject", "Sketch006")
body.addObject(sketch7)
sketch7.AttachmentSupport = (doc.XZ_Plane, [""])
sketch7.MapMode = "FlatFace"
sketch7.addGeometry(Part.LineSegment(App.Vector(14, -14, 0), App.Vector(-14, -14, 0)), False)
sketch7.addGeometry(Part.LineSegment(App.Vector(-14, -14, 0), App.Vector(-3, -16, 0)), False)
sketch7.addGeometry(Part.ArcOfCircle(Part.Circle(App.Vector(0, 0, 0), App.Vector(0, 0, 1), 17), math.radians(-99.89), math.radians(-80.11)), False)
sketch7.addGeometry(Part.LineSegment(App.Vector(3, -16, 0), App.Vector(14, -14, 0)), False)
sketch7.addConstraint(Sketcher.Constraint("Coincident", 0, 2, 1, 1))
sketch7.addConstraint(Sketcher.Constraint("Tangent", 1, 2, 2, 1))
sketch7.addConstraint(Sketcher.Constraint("Tangent", 2, 2, 3, 1))
sketch7.addConstraint(Sketcher.Constraint("Coincident", 3, 2, 0, 1))
sketch7.addConstraint(Sketcher.Constraint("Horizontal", 0))
sketch7.addConstraint(Sketcher.Constraint("Coincident", 2, 3, -1, 1))
sketch7.addConstraint(Sketcher.Constraint("Horizontal", 1, 2, 2, 2))
sketch7.addConstraint(Sketcher.Constraint("Radius", 2, Q("16.5 mm")))
sketch7.addConstraint(Sketcher.Constraint("DistanceY", 1, 2, 0, 2, Q("2 mm")))
sketch7.addConstraint(Sketcher.Constraint("Distance", 1, Q("11.649192 mm")))
pocket1 = doc.addObject("PartDesign::Pocket", "Pocket")
body.addObject(pocket1)
pocket1.Profile = sketch7
pocket1.Type = "ThroughAll"

sketch8 = doc.addObject("Sketcher::SketchObject", "Sketch007")
body.addObject(sketch8)
sketch8.AttachmentSupport = (doc.XY_Plane, [""])
sketch8.MapMode = "FlatFace"
sketch8.addGeometry(Part.Circle(App.Vector(0, 3.9, 0), App.Vector(0, 0, 1), 1.9), False)
sketch8.addConstraint(Sketcher.Constraint("PointOnObject", 0, 3, -2))
sketch8.addConstraint(Sketcher.Constraint("Diameter", 0, Q("3.8 mm")))
sketch8.addConstraint(Sketcher.Constraint("DistanceY", -1, 1, 0, 3, Q("3.9 mm")))
pocket2 = doc.addObject("PartDesign::Pocket", "Pocket001")
body.addObject(pocket2)
pocket2.Profile = sketch8
pocket2.Type = "ThroughAll"

sketch9 = doc.addObject("Sketcher::SketchObject", "Sketch008")
body.addObject(sketch9)
sketch9.AttachmentSupport = (doc.XZ_Plane, [""])
sketch9.MapMode = "FlatFace"
sketch9.AttachmentOffset = App.Placement(App.Vector(0, 0, -7.8), App.Rotation())
sketch9.addGeometry(Part.Circle(App.Vector(0, 0, 0), App.Vector(0, 0, 1), 14), False)
sketch9.addConstraint(Sketcher.Constraint("Coincident", 0, 3, -1, 1))
sketch9.addConstraint(Sketcher.Constraint("Diameter", 0, Q("29 mm")))
pocket3 = doc.addObject("PartDesign::Pocket", "Pocket002")
body.addObject(pocket3)
pocket3.Profile = sketch9
pocket3.Length = 1.2
pocket3.Reversed = True
doc.recompute()

fillet = doc.addObject("PartDesign::Fillet", "Fillet")
body.addObject(fillet)
fillet.Base = (pocket3, edges_at(pocket3, [
    (-52.484, 7.8, -7.007),
    (-53.07, 7.8, -5.148),
    (-53.438, 7.8, -3.593),
    (-56.07, 7.8, 0),
    (-53.438, 7.8, 3.593),
    (-53.07, 7.8, 5.148),
    (-52.484, 7.8, 7.007),
    (-26.916, 7.8, 12.058),
    (0, 7.8, 16.5),
    (26.916, 7.8, 12.058),
    (52.484, 7.8, 7.007),
    (53.07, 7.8, 5.148),
    (53.438, 7.8, 3.593),
    (56.07, 7.8, 0),
    (53.438, 7.8, -3.593),
    (53.07, 7.8, -5.148),
    (52.484, 7.8, -7.007),
    (32.654, 7.8, -11.058),
    (-32.654, 7.8, -11.058),
    (-32.654, 0, -11.058),
    (32.654, 0, -11.058),
    (52.484, 0, -7.007),
    (53.07, 0, -5.148),
    (53.438, 0, -3.593),
    (56.07, 0, 0),
    (53.438, 0, 3.593),
    (53.07, 0, 5.148),
    (52.484, 0, 7.007),
    (26.916, 0, 12.058),
    (0, 0, 16.5),
    (-26.916, 0, 12.058),
    (-52.484, 0, 7.007),
    (-53.07, 0, 5.148),
    (-53.438, 0, 3.593),
    (-56.07, 0, 0),
    (-53.438, 0, -3.593),
    (-53.07, 0, -5.148),
    (-52.484, 0, -7.007),
]))
fillet.Radius = 0.5

sketch10 = doc.addObject("Sketcher::SketchObject", "Sketch009")
body.addObject(sketch10)
sketch10.AttachmentSupport = (doc.XY_Plane, [""])
sketch10.MapMode = "FlatFace"
sketch10.AttachmentOffset = App.Placement(App.Vector(0, 0, -14.255004), App.Rotation())
add_polygon(sketch10, [(2, 7), (2, 0), (-2, 0), (-2, 7)])
sketch10.addConstraint(Sketcher.Constraint("Vertical", 0))
sketch10.addConstraint(Sketcher.Constraint("Horizontal", 1))
sketch10.addConstraint(Sketcher.Constraint("Vertical", 2))
sketch10.addConstraint(Sketcher.Constraint("Horizontal", 3))
sketch10.addConstraint(Sketcher.Constraint("Symmetric", 0, 2, 1, 2, -1, 1))
sketch10.addConstraint(Sketcher.Constraint("DistanceX", 1, 2, 1, 1, Q("5 mm")))
sketch10.addConstraint(Sketcher.Constraint("DistanceY", 0, 2, 0, 1, Q("6.6 mm")))
pocket4 = doc.addObject("PartDesign::Pocket", "Pocket003")
body.addObject(pocket4)
pocket4.Profile = sketch10
pocket4.Length = 5
pocket4.Reversed = True

sketch11 = doc.addObject("Sketcher::SketchObject", "Sketch010")
body.addObject(sketch11)
sketch11.AttachmentSupport = (doc.XZ_Plane, [""])
sketch11.MapMode = "FlatFace"
sketch11.AttachmentOffset = App.Placement(App.Vector(0, 0, -1), App.Rotation())
sketch11.addGeometry(Part.Circle(App.Vector(-53.1, 0, 0), App.Vector(0, 0, 1), 2), False)
sketch11.addGeometry(Part.Circle(App.Vector(53.1, 0, 0), App.Vector(0, 0, 1), 2), False)
sketch11.addConstraint(Sketcher.Constraint("Equal", 0, 1))
sketch11.addConstraint(Sketcher.Constraint("Symmetric", 0, 3, 1, 3, -1, 1))
sketch11.addConstraint(Sketcher.Constraint("PointOnObject", 0, 3, -1))
sketch11.addConstraint(Sketcher.Constraint("Diameter", 0, Q("4 mm")))
sketch11.addConstraint(Sketcher.Constraint("DistanceX", 0, 3, -1, 1, Q("53.07 mm")))
pocket5 = doc.addObject("PartDesign::Pocket", "Pocket004")
body.addObject(pocket5)
pocket5.Profile = sketch11
pocket5.Type = "ThroughAll"
doc.recompute()

fillet2 = doc.addObject("PartDesign::Fillet", "Fillet001")
body.addObject(fillet2)
fillet2.Base = (pocket5, edges_at(pocket5, [(-2.654, 7.2, -14.255), (2.654, 7.2, -14.255)]))
fillet2.Radius = 1

doc.recompute()
